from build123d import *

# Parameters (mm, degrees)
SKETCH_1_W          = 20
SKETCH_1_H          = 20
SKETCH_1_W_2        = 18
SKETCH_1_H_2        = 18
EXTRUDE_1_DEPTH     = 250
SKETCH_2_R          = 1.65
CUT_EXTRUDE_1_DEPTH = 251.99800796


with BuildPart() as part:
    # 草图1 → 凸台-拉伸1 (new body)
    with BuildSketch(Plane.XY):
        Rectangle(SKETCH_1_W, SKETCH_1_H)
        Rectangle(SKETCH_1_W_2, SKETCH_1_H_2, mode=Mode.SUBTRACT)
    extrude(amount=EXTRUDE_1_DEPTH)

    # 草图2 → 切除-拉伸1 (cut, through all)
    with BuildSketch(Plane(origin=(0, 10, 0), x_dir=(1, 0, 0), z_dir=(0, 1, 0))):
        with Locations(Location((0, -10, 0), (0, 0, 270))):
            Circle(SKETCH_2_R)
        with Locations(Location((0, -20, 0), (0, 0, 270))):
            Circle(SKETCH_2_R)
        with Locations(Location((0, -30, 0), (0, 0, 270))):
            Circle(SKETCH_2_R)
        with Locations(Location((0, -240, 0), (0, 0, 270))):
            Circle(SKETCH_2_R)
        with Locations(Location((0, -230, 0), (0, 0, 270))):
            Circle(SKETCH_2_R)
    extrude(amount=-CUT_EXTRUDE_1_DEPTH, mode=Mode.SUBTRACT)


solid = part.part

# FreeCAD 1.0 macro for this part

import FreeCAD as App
import Part
import Sketcher
Q = App.Units.Quantity


def add_polygon(sketch, points):
    """Adds a closed chain of lines whose ends are joined by coincident constraints."""
    first, n = sketch.GeometryCount, len(points)
    for a, b in zip(points, points[1:] + points[:1]):
        sketch.addGeometry(Part.LineSegment(App.Vector(*a, 0), App.Vector(*b, 0)), False)
    for i in range(n):
        sketch.addConstraint(Sketcher.Constraint("Coincident", first + i, 2, first + (i + 1) % n, 1))

doc = App.newDocument("Part")
body = doc.addObject("PartDesign::Body", "Body")

# Sketch on XY plane
sketch1 = doc.addObject("Sketcher::SketchObject", "Sketch")
body.addObject(sketch1)
sketch1.AttachmentSupport = (doc.XY_Plane, [""])
sketch1.MapMode = "FlatFace"
add_polygon(sketch1, [(-10, 10), (-10, -10), (10, -10), (10, 10)])  # lines 0-3
add_polygon(sketch1, [(9, -9), (-9, -9), (-9, 9), (9, 9)])  # lines 4-7
sketch1.addConstraint([
    Sketcher.Constraint("Vertical", 0),
    Sketcher.Constraint("Horizontal", 1),
    Sketcher.Constraint("Vertical", 2),
    Sketcher.Constraint("Horizontal", 3),
    Sketcher.Constraint("Horizontal", 4),
    Sketcher.Constraint("Vertical", 5),
    Sketcher.Constraint("Horizontal", 6),
    Sketcher.Constraint("Vertical", 7),
    Sketcher.Constraint("Symmetric", 0, 2, 2, 2, -1, 1),
    Sketcher.Constraint("Symmetric", 4, 2, 6, 2, -1, 1),
    Sketcher.Constraint("Equal", 3, 0),
    Sketcher.Constraint("Equal", 6, 5),
    Sketcher.Constraint("DistanceX", 1, 1, 1, 2, Q("20 mm")),
    Sketcher.Constraint("DistanceX", 4, 2, 4, 1, Q("18 mm")),
])
pad1 = doc.addObject("PartDesign::Pad", "Pad")
body.addObject(pad1)
pad1.Profile = sketch1
pad1.Length = 250

# Sketch on XZ plane
sketch2 = doc.addObject("Sketcher::SketchObject", "Sketch001")
body.addObject(sketch2)
sketch2.AttachmentSupport = (doc.XZ_Plane, [""])
sketch2.MapMode = "FlatFace"
sketch2.AttachmentOffset = App.Placement(App.Vector(0, 0, -10), App.Rotation())
sketch2.addGeometry([
    Part.Circle(App.Vector(0, 10, 0), App.Vector(0, 0, 1), 1.6),  # 0
    Part.Circle(App.Vector(0, 20, 0), App.Vector(0, 0, 1), 1.6),  # 1
    Part.Circle(App.Vector(0, 30, 0), App.Vector(0, 0, 1), 1.6),  # 2
    Part.Circle(App.Vector(0, 240, 0), App.Vector(0, 0, 1), 1.6),  # 3
    Part.Circle(App.Vector(0, 230, 0), App.Vector(0, 0, 1), 1.6),  # 4
], False)
sketch2.addConstraint([
    Sketcher.Constraint("Equal", 0, 1),
    Sketcher.Constraint("Equal", 1, 2),
    Sketcher.Constraint("Equal", 2, 3),
    Sketcher.Constraint("Equal", 3, 4),
    Sketcher.Constraint("PointOnObject", 0, 3, -2),
    Sketcher.Constraint("PointOnObject", 1, 3, -2),
    Sketcher.Constraint("PointOnObject", 2, 3, -2),
    Sketcher.Constraint("PointOnObject", 3, 3, -2),
    Sketcher.Constraint("PointOnObject", 4, 3, -2),
    Sketcher.Constraint("Diameter", 0, Q("3.3 mm")),
    Sketcher.Constraint("DistanceY", -1, 1, 0, 3, Q("10 mm")),
    Sketcher.Constraint("DistanceY", -1, 1, 1, 3, Q("20 mm")),
    Sketcher.Constraint("DistanceY", -1, 1, 2, 3, Q("30 mm")),
    Sketcher.Constraint("DistanceY", -1, 1, 3, 3, Q("240 mm")),
    Sketcher.Constraint("DistanceY", -1, 1, 4, 3, Q("230 mm")),
])
pocket1 = doc.addObject("PartDesign::Pocket", "Pocket")
body.addObject(pocket1)
pocket1.Profile = sketch2
pocket1.Type = "ThroughAll"
pocket1.Reversed = True

doc.recompute()
